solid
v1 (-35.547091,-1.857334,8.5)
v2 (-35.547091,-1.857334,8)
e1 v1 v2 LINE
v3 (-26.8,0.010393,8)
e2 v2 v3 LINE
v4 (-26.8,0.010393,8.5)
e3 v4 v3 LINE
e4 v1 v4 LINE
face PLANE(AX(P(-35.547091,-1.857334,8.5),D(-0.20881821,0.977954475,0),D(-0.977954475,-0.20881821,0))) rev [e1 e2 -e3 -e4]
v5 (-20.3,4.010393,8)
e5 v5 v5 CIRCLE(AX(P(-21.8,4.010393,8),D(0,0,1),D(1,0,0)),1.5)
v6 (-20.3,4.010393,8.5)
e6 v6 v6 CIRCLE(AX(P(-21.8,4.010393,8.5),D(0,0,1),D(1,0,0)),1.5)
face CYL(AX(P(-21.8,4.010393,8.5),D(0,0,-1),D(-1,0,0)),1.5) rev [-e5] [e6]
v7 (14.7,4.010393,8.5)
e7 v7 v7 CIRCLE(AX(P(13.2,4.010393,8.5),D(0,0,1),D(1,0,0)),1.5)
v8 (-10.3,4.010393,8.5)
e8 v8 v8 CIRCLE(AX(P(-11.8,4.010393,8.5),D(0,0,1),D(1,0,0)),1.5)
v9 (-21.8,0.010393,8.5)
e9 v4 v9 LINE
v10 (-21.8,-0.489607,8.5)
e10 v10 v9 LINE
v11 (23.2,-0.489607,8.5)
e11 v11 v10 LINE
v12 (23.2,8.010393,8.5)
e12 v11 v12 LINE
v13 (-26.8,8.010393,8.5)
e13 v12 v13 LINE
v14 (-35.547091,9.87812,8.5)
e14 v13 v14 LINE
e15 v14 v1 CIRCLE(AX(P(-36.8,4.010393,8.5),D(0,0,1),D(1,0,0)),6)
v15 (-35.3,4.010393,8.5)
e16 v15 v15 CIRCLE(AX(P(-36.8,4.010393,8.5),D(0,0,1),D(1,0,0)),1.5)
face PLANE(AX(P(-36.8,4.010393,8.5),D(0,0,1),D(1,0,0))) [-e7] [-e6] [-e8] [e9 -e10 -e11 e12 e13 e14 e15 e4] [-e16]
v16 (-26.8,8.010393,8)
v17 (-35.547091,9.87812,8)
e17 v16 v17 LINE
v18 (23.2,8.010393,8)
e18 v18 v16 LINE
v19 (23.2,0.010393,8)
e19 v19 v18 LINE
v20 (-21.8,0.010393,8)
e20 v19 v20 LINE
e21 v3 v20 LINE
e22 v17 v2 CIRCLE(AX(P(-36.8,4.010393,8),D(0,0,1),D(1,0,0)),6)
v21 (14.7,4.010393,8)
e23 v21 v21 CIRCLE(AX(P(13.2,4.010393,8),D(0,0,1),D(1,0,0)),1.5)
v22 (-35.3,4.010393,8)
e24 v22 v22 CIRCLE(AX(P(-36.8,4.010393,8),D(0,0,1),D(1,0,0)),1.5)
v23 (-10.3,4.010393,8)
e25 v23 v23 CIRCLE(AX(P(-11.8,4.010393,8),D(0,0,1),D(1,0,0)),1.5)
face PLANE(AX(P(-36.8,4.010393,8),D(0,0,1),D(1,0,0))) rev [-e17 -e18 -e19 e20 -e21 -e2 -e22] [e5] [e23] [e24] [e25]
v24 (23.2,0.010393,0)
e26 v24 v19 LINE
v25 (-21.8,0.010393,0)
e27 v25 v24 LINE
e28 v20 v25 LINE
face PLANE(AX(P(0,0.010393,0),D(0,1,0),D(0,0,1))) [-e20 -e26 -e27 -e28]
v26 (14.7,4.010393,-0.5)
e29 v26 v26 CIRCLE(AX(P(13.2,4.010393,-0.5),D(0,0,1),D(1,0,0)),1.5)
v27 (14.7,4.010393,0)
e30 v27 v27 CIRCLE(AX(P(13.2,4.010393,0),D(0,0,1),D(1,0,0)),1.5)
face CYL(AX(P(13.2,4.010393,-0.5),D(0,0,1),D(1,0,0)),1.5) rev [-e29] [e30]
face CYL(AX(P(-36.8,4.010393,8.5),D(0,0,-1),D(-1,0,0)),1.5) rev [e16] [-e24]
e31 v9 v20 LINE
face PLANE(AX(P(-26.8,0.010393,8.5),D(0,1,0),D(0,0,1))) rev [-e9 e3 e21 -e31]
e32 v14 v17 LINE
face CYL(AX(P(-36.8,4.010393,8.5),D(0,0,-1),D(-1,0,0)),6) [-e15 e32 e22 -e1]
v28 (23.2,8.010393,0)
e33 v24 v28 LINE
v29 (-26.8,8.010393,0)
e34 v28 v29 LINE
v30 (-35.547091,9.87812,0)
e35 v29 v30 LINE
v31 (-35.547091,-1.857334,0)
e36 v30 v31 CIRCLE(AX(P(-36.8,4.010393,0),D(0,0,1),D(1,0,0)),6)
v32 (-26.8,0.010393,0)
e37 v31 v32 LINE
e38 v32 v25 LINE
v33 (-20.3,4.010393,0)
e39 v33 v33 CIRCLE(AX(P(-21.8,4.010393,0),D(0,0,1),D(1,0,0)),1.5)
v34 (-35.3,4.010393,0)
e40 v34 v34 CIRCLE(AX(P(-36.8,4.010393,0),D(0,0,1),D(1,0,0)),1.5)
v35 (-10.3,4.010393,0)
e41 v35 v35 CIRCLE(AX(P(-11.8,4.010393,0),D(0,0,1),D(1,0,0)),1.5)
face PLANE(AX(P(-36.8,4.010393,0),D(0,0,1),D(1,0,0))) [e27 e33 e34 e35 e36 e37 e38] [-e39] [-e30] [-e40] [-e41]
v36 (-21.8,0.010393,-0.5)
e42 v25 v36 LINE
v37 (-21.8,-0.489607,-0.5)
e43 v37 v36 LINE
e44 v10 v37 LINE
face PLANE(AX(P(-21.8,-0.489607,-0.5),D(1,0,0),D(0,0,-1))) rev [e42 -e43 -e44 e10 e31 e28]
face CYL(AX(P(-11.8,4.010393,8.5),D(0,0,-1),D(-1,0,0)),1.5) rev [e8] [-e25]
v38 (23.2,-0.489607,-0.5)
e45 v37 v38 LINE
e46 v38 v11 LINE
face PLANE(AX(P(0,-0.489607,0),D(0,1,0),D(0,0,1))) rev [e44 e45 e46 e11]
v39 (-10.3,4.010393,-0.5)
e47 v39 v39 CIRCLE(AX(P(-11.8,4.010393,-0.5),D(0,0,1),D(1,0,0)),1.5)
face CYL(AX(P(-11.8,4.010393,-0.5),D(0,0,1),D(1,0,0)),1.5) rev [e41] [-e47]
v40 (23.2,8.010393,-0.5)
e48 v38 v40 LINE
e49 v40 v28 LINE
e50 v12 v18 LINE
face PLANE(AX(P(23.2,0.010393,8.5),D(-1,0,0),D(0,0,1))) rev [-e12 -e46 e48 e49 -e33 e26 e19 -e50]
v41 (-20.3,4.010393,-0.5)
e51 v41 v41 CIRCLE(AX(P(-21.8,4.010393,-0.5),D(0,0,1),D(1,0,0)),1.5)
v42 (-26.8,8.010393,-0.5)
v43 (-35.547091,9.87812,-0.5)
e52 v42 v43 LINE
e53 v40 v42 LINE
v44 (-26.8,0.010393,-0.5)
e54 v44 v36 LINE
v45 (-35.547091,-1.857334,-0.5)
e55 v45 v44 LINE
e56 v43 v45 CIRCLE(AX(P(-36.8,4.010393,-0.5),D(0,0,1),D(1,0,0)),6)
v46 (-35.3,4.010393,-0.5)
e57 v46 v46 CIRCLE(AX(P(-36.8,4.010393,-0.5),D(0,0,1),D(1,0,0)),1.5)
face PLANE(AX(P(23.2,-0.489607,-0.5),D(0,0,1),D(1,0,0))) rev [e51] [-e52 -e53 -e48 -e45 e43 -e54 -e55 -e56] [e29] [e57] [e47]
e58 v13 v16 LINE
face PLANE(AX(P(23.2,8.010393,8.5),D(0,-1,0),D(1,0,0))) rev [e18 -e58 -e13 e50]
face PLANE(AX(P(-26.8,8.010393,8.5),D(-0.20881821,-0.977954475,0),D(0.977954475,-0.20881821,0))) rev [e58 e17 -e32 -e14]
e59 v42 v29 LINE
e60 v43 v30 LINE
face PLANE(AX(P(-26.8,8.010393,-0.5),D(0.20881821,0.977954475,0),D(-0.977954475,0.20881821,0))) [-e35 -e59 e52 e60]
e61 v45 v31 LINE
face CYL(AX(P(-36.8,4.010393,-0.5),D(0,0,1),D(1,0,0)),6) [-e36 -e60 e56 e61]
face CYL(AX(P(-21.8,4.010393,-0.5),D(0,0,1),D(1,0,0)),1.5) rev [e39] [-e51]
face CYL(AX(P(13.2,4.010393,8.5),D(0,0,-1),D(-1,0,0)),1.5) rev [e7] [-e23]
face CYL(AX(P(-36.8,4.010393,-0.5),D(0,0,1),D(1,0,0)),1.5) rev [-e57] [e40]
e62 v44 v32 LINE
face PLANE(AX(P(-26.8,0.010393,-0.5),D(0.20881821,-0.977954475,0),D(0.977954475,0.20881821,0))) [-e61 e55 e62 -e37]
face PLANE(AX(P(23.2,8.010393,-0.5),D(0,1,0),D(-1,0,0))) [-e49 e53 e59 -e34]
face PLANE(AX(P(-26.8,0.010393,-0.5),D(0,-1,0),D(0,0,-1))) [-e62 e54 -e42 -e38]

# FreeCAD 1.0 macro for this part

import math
import FreeCAD as App
import Part
import Sketcher
Q = App.Units.Quantity

doc = App.newDocument("Part")
body = doc.addObject("PartDesign::Body", "Body")

# Sketch on XY plane
sketch1 = body.newObject("Sketcher::SketchObject", "Sketch")
sketch1.AttachmentSupport = (doc.getObject("XY_Plane"), [""])
sketch1.MapMode = "FlatFace"
sketch1.AttachmentOffset = App.Placement(App.Vector(0, 0, 8), App.Rotation())
sketch1.addGeometry([
    Part.LineSegment(App.Vector(-26.8, 8, 0), App.Vector(-35.5, 9.9, 0)),  # 0
    Part.ArcOfCircle(Part.Circle(App.Vector(-36.8, 4, 0), App.Vector(0, 0, 1), 6), math.radians(78), math.radians(282)),  # 1
    Part.LineSegment(App.Vector(-35.5, -1.9, 0), App.Vector(-26.8, 0, 0)),  # 2
    Part.LineSegment(App.Vector(-26.8, 0, 0), App.Vector(23.2, 0, 0)),  # 3
    Part.LineSegment(App.Vector(23.2, 0, 0), App.Vector(23.2, 8, 0)),  # 4
    Part.LineSegment(App.Vector(23.2, 8, 0), App.Vector(-26.8, 8, 0)),  # 5
    Part.Circle(App.Vector(-36.8, 4, 0), App.Vector(0, 0, 1), 1.5),  # 6
    Part.Circle(App.Vector(-21.8, 4, 0), App.Vector(0, 0, 1), 1.5),  # 7
    Part.Circle(App.Vector(-11.8, 4, 0), App.Vector(0, 0, 1), 1.5),  # 8
    Part.Circle(App.Vector(13.2, 4, 0), App.Vector(0, 0, 1), 1.5),  # 9
], False)
sketch1.addConstraint([
    Sketcher.Constraint("Tangent", 0, 2, 1, 1),
    Sketcher.Constraint("Tangent", 1, 2, 2, 1),
    Sketcher.Constraint("Coincident", 2, 2, 3, 1),
    Sketcher.Constraint("Coincident", 3, 2, 4, 1),
    Sketcher.Constraint("Coincident", 4, 2, 5, 1),
    Sketcher.Constraint("Coincident", 5, 2, 0, 1),
    Sketcher.Constraint("Horizontal", 3),
    Sketcher.Constraint("Vertical", 4),
    Sketcher.Constraint("Horizontal", 5),
    Sketcher.Constraint("Coincident", 6, 3, 1, 3),
    Sketcher.Constraint("Equal", 6, 7),
    Sketcher.Constraint("Equal", 7, 8),
    Sketcher.Constraint("Equal", 8, 9),
    Sketcher.Constraint("Horizontal", 6, 3, 7, 3),
    Sketcher.Constraint("Horizontal", 7, 3, 8, 3),
    Sketcher.Constraint("Horizontal", 8, 3, 9, 3),
    Sketcher.Constraint("Vertical", 0, 2, 1, 2),
    Sketcher.Constraint("Vertical", 2, 2, 5, 2),
    Sketcher.Constraint("Diameter", 6, Q("3 mm")),
    Sketcher.Constraint("Radius", 1, Q("6 mm")),
    Sketcher.Constraint("DistanceX", 3, 1, 3, 2, Q("50 mm")),
    Sketcher.Constraint("DistanceY", 4, 1, 4, 2, Q("8 mm")),
    Sketcher.Constraint("DistanceX", 1, 3, 7, 3, Q("15 mm")),
    Sketcher.Constraint("DistanceX", 7, 3, 8, 3, Q("10 mm")),
    Sketcher.Constraint("DistanceX", 8, 3, 9, 3, Q("25 mm")),
    Sketcher.Constraint("DistanceX", 2, 2, 7, 3, Q("5 mm")),
    Sketcher.Constraint("DistanceX", 1, 3, -1, 1, Q("36.8 mm")),
    Sketcher.Constraint("DistanceY", -1, 1, 0, 2, Q("9.87812 mm")),
])
pad1 = body.newObject("PartDesign::Pad", "Pad")
pad1.Profile = sketch1
pad1.Length = 0.5
body2 = doc.addObject("PartDesign::Body", "Body001")

# Sketch on XY plane
sketch2 = body2.newObject("Sketcher::SketchObject", "Sketch001")
sketch2.AttachmentSupport = (doc.getObject("XY_Plane001"), [""])
sketch2.MapMode = "FlatFace"
sketch2.addGeometry([
    Part.LineSegment(App.Vector(23.2, 8, 0), App.Vector(-26.8, 8, 0)),  # 0
    Part.LineSegment(App.Vector(-26.8, 8, 0), App.Vector(-35.5, 9.9, 0)),  # 1
    Part.ArcOfCircle(Part.Circle(App.Vector(-36.8, 4, 0), App.Vector(0, 0, 1), 6), math.radians(78), math.radians(282)),  # 2
    Part.LineSegment(App.Vector(-35.5, -1.9, 0), App.Vector(-26.8, 0, 0)),  # 3
    Part.LineSegment(App.Vector(-26.8, 0, 0), App.Vector(23.2, 0, 0)),  # 4
    Part.LineSegment(App.Vector(23.2, 0, 0), App.Vector(23.2, 8, 0)),  # 5
    Part.Circle(App.Vector(-36.8, 4, 0), App.Vector(0, 0, 1), 1.5),  # 6
    Part.Circle(App.Vector(-21.8, 4, 0), App.Vector(0, 0, 1), 1.5),  # 7
    Part.Circle(App.Vector(-11.8, 4, 0), App.Vector(0, 0, 1), 1.5),  # 8
    Part.Circle(App.Vector(13.2, 4, 0), App.Vector(0, 0, 1), 1.5),  # 9
], False)
sketch2.addConstraint([
    Sketcher.Constraint("Coincident", 0, 2, 1, 1),
    Sketcher.Constraint("Tangent", 1, 2, 2, 1),
    Sketcher.Constraint("Tangent", 2, 2, 3, 1),
    Sketcher.Constraint("Coincident", 3, 2, 4, 1),
    Sketcher.Constraint("Coincident", 4, 2, 5, 1),
    Sketcher.Constraint("Coincident", 5, 2, 0, 1),
    Sketcher.Constraint("Horizontal", 0),
    Sketcher.Constraint("Horizontal", 4),
    Sketcher.Constraint("Vertical", 5),
    Sketcher.Constraint("Coincident", 6, 3, 2, 3),
    Sketcher.Constraint("Equal", 6, 7),
    Sketcher.Constraint("Equal", 7, 8),
    Sketcher.Constraint("Equal", 8, 9),
    Sketcher.Constraint("Horizontal", 6, 3, 7, 3),
    Sketcher.Constraint("Horizontal", 7, 3, 8, 3),
    Sketcher.Constraint("Horizontal", 8, 3, 9, 3),
    Sketcher.Constraint("Vertical", 1, 2, 2, 2),
    Sketcher.Constraint("Vertical", 0, 2, 3, 2),
    Sketcher.Constraint("Diameter", 6, Q("3 mm")),
    Sketcher.Constraint("Radius", 2, Q("6 mm")),
    Sketcher.Constraint("DistanceX", 0, 2, 0, 1, Q("50 mm")),
    Sketcher.Constraint("DistanceY", 5, 1, 5, 2, Q("8 mm")),
    Sketcher.Constraint("DistanceX", 2, 3, 7, 3, Q("15 mm")),
    Sketcher.Constraint("DistanceX", 7, 3, 8, 3, Q("10 mm")),
    Sketcher.Constraint("DistanceX", 8, 3, 9, 3, Q("25 mm")),
    Sketcher.Constraint("DistanceX", 0, 2, 7, 3, Q("5 mm")),
    Sketcher.Constraint("DistanceX", 2, 3, -1, 1, Q("36.8 mm")),
    Sketcher.Constraint("DistanceY", -1, 1, 1, 2, Q("9.87812 mm")),
])
pad2 = body2.newObject("PartDesign::Pad", "Pad001")
pad2.Profile = sketch2
pad2.Length = 0.5
pad2.Reversed = True
body.AllowCompound = True
doc.recompute()

boolean = body.newObject("PartDesign::Boolean", "Boolean")
boolean.Type = "Fuse"
boolean.addObjects([body2])

# Sketch on XZ plane
sketch3 = body.newObject("Sketcher::SketchObject", "Sketch002")
sketch3.AttachmentSupport = (doc.getObject("XZ_Plane"), [""])
sketch3.MapMode = "FlatFace"
sketch3.AttachmentOffset = App.Placement(App.Vector(0, 0, -0.010393), App.Rotation())
sketch3.addGeometry([
    Part.LineSegment(App.Vector(-22, 8, 0), App.Vector(-22, 0, 0)),
    Part.LineSegment(App.Vector(-22, 0, 0), App.Vector(23, 0, 0)),
    Part.LineSegment(App.Vector(23, 0, 0), App.Vector(23, 8, 0)),
    Part.LineSegment(App.Vector(23, 8, 0), App.Vector(-22, 8, 0)),
], False)
sketch3.addConstraint([
    Sketcher.Constraint("Coincident", 0, 2, 1, 1),
    Sketcher.Constraint("Coincident", 1, 2, 2, 1),
    Sketcher.Constraint("Coincident", 2, 2, 3, 1),
    Sketcher.Constraint("Coincident", 3, 2, 0, 1),
    Sketcher.Constraint("Vertical", 0),
    Sketcher.Constraint("Horizontal", 1),
    Sketcher.Constraint("Vertical", 2),
    Sketcher.Constraint("Horizontal", 3),
    Sketcher.Constraint("DistanceX", 1, 1, 1, 2, Q("45 mm")),
    Sketcher.Constraint("DistanceY", 0, 2, 0, 1, Q("9 mm")),
    Sketcher.Constraint("DistanceX", 0, 2, -1, 1, Q("21.8 mm")),
    Sketcher.Constraint("DistanceY", 0, 2, -1, 1, Q("0.5 mm")),
])
pad3 = body.newObject("PartDesign::Pad", "Pad002")
pad3.Profile = sketch3
pad3.Length = 0.5

doc.recompute()
